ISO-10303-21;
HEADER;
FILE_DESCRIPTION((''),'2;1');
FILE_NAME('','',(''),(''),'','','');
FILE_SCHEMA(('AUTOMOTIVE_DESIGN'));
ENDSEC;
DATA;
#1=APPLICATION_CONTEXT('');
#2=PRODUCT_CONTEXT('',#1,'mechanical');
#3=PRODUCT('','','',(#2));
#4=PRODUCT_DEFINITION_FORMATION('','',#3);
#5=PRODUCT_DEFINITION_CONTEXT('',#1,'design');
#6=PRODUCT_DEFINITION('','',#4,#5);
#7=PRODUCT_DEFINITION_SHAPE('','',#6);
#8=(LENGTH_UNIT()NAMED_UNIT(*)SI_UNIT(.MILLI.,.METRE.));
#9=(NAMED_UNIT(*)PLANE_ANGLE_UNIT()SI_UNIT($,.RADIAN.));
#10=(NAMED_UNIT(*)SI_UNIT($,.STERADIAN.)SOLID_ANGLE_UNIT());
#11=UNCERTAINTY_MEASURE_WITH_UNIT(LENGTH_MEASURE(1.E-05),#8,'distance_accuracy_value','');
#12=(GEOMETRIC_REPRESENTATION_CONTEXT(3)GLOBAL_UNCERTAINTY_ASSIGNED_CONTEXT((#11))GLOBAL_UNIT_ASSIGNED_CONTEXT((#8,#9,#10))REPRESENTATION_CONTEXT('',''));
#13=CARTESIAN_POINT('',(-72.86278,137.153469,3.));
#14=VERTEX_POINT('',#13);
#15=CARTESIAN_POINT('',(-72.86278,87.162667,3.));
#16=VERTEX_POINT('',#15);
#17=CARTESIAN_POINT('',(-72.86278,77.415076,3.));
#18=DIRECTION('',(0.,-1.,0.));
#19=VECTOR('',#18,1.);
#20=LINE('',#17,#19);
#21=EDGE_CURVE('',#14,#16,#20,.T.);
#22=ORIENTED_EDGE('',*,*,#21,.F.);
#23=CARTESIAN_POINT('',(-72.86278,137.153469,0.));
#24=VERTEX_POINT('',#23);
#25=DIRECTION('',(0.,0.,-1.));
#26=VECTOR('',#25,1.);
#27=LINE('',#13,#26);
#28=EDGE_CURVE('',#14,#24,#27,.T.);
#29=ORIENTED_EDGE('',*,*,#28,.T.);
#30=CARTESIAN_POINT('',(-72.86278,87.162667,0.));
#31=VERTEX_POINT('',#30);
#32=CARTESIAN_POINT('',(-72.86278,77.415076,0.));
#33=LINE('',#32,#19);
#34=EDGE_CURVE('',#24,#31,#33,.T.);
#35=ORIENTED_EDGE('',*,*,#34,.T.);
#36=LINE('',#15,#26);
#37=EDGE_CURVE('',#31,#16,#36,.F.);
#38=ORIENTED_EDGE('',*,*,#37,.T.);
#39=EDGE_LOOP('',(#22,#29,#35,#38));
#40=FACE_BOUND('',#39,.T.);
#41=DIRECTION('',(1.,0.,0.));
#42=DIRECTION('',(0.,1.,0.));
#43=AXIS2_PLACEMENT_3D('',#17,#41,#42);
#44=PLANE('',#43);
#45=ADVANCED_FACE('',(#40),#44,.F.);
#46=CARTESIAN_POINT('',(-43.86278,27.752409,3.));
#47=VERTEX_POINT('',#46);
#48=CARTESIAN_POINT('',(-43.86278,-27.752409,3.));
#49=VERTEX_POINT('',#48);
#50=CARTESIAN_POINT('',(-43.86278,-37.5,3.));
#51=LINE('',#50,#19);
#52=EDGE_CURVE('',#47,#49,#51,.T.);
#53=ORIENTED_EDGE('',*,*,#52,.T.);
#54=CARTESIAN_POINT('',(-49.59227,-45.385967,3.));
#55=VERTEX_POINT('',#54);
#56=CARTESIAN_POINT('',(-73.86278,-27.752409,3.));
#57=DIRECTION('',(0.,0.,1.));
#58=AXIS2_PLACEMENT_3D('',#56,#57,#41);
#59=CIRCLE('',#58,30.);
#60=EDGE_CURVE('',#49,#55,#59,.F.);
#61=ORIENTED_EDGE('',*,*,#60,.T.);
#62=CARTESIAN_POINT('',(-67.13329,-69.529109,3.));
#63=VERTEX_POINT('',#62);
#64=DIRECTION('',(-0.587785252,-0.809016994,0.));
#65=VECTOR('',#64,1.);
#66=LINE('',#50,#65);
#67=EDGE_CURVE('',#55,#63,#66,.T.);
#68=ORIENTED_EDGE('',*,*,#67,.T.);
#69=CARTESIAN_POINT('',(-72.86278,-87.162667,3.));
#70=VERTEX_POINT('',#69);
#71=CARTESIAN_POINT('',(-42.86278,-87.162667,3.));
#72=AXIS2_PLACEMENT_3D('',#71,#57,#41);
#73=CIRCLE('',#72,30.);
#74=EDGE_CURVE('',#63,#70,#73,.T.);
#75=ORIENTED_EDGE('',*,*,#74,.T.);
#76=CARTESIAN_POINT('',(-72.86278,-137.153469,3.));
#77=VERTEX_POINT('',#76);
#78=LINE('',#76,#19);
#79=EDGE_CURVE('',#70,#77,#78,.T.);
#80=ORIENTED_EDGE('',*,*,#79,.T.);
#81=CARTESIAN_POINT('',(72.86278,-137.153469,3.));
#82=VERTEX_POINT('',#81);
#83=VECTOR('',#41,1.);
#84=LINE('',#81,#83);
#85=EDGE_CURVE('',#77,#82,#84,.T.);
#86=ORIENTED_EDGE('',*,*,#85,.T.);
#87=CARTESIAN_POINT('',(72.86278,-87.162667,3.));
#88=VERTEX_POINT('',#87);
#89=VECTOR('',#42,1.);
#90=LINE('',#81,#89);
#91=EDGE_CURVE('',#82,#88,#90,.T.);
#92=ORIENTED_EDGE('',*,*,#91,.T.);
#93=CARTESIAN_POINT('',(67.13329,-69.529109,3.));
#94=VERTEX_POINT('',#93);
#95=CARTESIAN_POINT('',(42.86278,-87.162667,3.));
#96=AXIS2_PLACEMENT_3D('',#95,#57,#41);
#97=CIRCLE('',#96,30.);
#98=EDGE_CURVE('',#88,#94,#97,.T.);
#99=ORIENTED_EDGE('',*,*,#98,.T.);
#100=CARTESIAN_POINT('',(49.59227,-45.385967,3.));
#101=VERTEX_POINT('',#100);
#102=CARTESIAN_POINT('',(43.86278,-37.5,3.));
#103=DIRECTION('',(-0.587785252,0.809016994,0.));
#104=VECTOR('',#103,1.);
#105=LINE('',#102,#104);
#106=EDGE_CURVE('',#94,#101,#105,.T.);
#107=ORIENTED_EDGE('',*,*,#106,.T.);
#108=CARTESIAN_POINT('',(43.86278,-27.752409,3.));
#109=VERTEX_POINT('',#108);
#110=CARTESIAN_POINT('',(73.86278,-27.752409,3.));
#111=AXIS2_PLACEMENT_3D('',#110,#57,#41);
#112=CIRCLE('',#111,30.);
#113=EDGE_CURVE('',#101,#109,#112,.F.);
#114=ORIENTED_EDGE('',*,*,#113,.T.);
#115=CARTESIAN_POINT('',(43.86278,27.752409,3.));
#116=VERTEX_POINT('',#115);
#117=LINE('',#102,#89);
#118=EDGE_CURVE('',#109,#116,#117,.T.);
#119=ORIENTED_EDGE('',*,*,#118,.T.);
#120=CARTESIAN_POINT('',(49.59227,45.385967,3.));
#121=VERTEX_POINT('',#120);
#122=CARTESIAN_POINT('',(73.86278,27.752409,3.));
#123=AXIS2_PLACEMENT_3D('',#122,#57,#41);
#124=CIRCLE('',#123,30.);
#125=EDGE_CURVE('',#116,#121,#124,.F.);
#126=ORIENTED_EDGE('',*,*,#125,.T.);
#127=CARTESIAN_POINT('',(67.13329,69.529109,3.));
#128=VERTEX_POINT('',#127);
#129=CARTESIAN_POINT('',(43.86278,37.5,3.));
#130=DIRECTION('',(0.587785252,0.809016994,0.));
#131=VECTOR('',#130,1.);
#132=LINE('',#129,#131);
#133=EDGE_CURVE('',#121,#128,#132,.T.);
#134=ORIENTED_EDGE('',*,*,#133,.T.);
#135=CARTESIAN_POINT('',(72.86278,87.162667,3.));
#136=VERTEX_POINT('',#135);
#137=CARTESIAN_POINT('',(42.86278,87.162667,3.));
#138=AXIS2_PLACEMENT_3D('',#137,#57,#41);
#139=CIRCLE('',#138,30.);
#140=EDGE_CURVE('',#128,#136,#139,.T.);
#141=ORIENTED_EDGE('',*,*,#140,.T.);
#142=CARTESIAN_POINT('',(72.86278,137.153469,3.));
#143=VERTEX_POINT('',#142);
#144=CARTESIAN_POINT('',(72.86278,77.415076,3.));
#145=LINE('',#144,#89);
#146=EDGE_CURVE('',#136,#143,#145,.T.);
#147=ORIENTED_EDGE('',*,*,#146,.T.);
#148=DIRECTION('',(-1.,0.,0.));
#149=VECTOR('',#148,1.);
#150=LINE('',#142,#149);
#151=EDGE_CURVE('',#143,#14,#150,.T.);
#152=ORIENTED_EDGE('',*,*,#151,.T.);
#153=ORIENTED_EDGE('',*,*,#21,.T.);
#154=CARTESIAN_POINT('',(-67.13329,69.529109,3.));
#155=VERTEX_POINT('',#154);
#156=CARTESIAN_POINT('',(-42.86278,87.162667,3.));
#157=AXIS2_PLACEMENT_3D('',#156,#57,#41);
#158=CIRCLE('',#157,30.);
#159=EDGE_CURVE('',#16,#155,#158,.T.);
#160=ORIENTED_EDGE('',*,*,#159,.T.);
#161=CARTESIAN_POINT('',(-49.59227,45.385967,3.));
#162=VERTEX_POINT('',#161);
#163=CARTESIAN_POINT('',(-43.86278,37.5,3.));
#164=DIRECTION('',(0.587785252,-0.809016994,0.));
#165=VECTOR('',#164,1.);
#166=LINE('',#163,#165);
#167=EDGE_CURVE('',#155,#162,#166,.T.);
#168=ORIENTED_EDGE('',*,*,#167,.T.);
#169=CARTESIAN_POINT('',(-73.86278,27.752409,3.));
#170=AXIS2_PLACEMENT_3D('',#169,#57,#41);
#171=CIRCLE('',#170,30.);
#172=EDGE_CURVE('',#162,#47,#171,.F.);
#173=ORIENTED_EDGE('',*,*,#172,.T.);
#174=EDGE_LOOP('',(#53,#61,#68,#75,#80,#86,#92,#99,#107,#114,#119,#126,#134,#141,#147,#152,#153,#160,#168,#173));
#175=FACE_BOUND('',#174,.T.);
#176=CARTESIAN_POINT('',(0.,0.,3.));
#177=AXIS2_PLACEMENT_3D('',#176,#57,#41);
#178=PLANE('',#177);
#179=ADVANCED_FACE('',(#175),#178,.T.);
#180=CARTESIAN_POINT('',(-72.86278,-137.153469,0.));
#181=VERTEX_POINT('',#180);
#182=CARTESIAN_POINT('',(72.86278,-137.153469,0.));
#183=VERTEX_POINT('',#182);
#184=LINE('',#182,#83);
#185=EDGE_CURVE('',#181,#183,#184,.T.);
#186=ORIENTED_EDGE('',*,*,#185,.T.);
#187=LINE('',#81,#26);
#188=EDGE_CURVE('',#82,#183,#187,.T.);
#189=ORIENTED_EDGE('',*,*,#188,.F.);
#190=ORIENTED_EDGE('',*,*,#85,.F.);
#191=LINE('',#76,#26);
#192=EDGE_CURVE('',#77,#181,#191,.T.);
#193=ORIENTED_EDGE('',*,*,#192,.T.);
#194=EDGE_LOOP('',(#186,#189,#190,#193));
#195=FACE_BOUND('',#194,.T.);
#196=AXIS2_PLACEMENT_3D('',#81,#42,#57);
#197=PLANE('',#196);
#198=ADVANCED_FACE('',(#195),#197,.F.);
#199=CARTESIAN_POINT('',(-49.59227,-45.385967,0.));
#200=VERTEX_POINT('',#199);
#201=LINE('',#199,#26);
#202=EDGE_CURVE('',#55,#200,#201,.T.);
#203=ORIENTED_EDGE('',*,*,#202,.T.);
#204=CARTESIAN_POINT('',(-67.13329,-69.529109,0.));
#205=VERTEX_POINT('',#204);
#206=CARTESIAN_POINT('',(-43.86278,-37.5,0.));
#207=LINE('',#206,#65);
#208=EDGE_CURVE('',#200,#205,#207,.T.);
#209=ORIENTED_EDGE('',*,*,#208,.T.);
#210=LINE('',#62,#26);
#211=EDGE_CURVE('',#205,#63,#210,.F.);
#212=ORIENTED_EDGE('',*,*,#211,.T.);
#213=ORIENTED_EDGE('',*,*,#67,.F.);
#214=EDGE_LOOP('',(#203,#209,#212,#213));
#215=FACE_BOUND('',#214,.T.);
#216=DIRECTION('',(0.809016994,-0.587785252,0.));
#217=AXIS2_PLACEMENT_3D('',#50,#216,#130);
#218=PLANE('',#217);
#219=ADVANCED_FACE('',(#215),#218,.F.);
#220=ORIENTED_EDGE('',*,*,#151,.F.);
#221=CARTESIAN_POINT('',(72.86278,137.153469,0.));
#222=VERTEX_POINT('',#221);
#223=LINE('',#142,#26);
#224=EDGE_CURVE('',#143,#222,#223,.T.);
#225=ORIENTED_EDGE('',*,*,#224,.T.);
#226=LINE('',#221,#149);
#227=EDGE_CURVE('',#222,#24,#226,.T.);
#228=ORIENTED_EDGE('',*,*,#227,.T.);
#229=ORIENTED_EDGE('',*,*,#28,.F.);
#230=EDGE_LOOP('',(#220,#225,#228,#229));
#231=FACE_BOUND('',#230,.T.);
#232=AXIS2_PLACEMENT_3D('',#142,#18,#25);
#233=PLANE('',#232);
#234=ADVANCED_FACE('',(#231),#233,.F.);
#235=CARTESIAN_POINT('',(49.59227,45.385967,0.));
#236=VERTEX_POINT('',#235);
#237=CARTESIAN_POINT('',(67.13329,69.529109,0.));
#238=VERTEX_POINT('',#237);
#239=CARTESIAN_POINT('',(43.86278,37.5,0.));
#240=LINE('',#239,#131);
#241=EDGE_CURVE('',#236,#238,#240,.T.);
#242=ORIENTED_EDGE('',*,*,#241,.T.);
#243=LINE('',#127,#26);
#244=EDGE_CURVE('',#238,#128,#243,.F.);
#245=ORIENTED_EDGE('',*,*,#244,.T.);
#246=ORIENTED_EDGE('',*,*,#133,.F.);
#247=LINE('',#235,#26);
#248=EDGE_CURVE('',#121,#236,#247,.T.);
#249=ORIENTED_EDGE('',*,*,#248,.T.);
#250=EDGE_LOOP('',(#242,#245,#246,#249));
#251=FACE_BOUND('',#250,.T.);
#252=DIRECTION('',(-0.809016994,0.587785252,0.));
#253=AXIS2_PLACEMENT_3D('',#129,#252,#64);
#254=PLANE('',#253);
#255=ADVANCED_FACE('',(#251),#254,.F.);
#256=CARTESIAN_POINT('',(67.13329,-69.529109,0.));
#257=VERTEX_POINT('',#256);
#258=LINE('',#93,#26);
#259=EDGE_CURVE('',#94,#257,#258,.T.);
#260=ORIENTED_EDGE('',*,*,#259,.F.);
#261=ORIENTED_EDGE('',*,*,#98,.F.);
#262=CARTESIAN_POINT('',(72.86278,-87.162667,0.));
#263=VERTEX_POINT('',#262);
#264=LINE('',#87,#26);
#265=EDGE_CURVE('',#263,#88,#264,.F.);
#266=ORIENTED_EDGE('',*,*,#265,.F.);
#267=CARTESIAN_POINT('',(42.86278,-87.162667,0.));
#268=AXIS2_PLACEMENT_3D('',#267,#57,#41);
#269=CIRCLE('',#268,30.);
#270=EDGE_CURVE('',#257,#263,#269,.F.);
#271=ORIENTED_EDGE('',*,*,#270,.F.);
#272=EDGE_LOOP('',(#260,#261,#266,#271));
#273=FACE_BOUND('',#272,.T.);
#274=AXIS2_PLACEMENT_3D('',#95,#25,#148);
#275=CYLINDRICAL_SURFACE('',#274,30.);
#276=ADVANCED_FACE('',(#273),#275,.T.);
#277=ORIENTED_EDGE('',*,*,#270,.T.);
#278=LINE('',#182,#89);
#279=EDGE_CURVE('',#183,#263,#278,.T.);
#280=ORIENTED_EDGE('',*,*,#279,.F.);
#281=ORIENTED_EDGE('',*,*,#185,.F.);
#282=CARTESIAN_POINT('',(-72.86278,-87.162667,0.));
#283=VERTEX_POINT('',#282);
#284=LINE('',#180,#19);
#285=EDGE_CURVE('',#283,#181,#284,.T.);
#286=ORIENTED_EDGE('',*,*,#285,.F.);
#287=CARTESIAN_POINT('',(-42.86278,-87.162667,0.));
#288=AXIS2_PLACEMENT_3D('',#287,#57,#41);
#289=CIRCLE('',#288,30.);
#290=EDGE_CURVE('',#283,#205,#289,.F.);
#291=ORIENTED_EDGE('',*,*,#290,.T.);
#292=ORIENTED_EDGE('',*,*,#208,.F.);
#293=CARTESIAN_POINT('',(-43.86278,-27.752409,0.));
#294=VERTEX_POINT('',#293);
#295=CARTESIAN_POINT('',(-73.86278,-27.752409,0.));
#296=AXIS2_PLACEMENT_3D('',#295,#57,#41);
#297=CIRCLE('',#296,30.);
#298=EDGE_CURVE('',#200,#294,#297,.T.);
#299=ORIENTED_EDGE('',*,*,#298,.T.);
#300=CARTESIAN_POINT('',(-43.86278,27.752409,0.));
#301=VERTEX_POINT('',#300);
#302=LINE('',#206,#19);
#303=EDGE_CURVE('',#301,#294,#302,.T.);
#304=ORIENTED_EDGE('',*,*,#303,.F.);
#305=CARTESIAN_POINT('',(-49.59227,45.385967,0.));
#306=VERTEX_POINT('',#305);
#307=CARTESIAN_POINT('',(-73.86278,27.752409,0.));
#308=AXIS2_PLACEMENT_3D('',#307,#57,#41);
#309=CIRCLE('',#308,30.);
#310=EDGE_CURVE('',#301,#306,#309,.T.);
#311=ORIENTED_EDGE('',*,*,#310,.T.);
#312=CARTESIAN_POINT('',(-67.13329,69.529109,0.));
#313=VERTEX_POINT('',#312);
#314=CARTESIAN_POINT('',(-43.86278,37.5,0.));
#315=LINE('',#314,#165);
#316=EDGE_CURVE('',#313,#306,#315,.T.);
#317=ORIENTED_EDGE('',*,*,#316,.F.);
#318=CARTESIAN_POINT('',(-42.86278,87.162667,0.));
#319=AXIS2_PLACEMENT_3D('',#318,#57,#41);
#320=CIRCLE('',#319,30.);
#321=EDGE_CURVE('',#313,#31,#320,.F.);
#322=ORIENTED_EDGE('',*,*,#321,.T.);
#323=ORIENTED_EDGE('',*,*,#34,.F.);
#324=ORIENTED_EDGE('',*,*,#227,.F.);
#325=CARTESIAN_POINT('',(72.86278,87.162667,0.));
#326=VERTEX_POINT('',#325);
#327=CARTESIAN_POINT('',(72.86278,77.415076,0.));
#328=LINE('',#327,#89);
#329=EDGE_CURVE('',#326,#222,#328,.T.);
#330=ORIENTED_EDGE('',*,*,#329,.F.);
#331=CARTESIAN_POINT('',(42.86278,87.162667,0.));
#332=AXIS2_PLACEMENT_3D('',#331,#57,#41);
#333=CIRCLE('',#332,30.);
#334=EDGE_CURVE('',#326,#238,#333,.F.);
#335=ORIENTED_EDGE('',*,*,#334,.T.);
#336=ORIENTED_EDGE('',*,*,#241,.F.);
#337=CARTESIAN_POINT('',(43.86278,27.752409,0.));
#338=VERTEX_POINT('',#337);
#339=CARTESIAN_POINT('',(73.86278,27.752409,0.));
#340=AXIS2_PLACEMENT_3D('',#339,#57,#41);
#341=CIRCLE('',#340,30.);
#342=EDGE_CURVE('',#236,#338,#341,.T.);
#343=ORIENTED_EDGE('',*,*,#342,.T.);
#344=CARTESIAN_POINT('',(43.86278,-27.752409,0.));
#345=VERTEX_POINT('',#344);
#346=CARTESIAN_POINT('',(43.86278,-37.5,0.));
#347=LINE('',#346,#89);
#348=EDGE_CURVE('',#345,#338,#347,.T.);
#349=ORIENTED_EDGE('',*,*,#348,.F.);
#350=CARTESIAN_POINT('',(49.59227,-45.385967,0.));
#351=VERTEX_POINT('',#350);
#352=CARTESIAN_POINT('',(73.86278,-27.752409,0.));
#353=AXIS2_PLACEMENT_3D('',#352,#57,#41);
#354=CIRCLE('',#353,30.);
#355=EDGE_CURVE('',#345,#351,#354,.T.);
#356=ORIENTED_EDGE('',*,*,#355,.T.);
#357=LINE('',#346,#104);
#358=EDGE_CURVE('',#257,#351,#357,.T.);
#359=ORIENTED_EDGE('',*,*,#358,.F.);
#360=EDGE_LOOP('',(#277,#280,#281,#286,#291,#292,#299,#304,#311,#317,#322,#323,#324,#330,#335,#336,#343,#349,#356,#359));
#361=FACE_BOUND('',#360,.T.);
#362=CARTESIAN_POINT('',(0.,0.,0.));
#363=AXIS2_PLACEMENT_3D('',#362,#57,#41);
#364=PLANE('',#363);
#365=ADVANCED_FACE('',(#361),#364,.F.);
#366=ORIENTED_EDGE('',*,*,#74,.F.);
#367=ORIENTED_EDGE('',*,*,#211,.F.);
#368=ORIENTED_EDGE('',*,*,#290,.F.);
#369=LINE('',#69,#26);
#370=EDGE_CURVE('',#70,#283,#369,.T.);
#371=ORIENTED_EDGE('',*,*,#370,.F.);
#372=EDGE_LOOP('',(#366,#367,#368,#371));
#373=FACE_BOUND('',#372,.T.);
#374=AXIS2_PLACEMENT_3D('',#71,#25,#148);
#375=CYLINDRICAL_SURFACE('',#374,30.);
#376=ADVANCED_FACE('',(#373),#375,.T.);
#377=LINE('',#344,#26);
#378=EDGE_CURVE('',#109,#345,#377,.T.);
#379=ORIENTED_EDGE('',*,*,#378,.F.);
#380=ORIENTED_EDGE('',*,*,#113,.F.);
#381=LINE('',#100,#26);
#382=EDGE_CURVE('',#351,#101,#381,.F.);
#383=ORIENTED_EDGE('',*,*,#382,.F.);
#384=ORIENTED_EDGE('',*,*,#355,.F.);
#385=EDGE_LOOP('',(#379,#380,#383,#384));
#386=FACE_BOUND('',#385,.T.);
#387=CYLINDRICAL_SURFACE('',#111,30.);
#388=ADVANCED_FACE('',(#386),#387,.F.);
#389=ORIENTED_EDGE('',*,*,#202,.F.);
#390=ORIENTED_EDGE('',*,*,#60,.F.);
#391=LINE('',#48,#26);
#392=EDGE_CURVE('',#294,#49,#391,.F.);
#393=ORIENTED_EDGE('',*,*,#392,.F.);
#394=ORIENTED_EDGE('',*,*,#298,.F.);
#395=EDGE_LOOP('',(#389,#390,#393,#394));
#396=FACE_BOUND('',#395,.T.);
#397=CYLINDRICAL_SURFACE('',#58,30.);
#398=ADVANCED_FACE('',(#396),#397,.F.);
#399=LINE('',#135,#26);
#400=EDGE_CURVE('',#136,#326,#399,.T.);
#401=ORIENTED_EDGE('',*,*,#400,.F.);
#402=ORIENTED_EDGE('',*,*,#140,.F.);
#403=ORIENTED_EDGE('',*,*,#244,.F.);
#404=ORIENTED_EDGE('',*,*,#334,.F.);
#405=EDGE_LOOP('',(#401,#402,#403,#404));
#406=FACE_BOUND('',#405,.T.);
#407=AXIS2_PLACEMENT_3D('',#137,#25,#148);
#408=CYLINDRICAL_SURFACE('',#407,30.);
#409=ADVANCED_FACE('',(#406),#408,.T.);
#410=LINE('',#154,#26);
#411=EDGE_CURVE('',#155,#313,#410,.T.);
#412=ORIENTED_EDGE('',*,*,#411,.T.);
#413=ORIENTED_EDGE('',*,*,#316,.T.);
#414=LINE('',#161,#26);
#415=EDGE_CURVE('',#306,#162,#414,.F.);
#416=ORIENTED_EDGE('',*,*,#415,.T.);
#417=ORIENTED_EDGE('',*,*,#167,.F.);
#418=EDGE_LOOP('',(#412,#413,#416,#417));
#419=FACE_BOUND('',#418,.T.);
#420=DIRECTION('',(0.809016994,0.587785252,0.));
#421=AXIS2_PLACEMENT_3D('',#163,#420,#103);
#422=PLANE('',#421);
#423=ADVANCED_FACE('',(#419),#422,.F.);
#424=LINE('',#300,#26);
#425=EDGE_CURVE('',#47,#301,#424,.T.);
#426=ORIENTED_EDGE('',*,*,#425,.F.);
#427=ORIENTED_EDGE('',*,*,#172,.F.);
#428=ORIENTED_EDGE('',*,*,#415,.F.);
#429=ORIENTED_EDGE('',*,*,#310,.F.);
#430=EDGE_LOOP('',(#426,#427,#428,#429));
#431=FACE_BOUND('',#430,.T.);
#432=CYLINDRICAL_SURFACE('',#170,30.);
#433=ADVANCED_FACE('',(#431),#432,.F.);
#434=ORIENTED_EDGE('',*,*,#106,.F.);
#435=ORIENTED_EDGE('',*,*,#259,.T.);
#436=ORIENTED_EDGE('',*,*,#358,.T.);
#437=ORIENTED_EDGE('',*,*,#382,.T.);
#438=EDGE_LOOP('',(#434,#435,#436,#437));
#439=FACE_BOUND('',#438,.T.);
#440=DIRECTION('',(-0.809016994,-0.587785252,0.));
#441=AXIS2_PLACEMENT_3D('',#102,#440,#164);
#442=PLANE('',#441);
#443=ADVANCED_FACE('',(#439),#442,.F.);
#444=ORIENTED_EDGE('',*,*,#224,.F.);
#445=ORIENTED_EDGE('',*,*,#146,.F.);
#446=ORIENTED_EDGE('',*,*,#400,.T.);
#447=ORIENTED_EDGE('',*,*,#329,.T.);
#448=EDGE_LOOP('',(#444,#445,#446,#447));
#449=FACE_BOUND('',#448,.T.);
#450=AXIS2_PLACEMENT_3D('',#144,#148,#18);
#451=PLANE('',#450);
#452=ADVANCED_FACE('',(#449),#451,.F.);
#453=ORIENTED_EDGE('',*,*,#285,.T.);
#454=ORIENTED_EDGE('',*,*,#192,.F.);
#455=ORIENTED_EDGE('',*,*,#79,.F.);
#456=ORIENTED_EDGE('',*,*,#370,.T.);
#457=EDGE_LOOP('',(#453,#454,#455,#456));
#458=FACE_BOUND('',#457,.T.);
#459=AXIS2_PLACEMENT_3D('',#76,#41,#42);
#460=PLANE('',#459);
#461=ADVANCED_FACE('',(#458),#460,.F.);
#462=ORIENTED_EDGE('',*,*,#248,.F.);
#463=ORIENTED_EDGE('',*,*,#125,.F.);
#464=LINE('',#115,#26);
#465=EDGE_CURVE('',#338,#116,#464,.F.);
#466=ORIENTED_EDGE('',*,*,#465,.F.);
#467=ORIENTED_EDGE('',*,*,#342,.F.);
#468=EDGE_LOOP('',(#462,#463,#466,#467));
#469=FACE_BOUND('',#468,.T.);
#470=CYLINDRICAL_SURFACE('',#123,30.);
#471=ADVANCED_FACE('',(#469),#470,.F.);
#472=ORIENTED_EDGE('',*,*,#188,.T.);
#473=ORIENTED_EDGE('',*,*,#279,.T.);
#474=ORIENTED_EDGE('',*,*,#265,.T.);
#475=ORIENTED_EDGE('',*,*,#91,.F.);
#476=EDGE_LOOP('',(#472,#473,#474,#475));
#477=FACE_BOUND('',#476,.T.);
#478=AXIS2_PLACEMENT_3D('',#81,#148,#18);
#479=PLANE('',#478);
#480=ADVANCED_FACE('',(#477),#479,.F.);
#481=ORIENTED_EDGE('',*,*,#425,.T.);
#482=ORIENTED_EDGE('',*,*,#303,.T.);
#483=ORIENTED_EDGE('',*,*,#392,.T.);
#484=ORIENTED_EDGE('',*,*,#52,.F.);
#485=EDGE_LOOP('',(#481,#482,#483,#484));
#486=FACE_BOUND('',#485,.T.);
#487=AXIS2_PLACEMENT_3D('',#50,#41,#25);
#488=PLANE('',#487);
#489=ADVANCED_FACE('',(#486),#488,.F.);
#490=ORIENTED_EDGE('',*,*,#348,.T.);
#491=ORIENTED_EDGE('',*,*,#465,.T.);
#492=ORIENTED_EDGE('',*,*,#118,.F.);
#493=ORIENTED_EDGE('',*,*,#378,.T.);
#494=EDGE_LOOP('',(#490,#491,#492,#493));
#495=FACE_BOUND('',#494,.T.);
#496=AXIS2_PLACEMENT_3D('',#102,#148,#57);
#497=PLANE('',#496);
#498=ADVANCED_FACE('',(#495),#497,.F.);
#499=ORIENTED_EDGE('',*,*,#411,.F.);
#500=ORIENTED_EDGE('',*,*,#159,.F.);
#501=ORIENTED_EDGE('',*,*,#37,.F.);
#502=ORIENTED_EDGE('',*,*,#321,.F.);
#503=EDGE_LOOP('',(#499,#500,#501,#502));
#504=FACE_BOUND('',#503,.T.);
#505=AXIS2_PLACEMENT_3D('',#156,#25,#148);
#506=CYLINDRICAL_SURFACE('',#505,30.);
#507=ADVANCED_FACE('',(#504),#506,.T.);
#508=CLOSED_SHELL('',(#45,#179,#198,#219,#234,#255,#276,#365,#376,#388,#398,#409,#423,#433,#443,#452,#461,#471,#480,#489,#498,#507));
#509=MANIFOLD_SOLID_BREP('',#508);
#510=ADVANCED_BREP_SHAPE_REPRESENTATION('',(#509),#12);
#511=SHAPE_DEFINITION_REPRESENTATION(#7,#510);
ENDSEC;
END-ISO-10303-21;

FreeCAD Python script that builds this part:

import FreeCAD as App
import Part
import Sketcher

V = App.Vector
Q = App.Units.Quantity


def edges_at(feature, points):
    """Names of the edges that pass closest to the given points."""
    edges = feature.Shape.Edges
    near = lambda p: min(range(len(edges)), key=lambda i: edges[i].distToShape(Part.Vertex(*p))[0])
    return sorted({f"Edge{near(p) + 1}" for p in points})


def add_polygon(sketch, points):
    """Adds a closed chain of lines whose ends are joined by coincident constraints."""
    first, n = sketch.GeometryCount, len(points)
    for a, b in zip(points, points[1:] + points[:1]):
        sketch.addGeometry(Part.LineSegment(App.Vector(*a, 0), App.Vector(*b, 0)), False)
    for i in range(n):
        sketch.addConstraint(Sketcher.Constraint("Coincident", first + i, 2, first + (i + 1) % n, 1))

doc = App.newDocument("Part")
params = doc.addObject("Spreadsheet::Sheet", "Params")
for row, (alias, value) in enumerate([
    ("sketch1_height", "75 mm"),
    ("pad1_length", "3 mm"),
    ("fillet_radius", "30 mm"),
], start=1):
    params.set(f"A{row}", alias)
    params.set(f"B{row}", "=" + value)
    params.setAlias(f"B{row}", alias)

body = doc.addObject("PartDesign::Body", "Body")

# Sketch on XY plane
sketch1 = body.newObject("Sketcher::SketchObject", "Sketch")
sketch1.AttachmentSupport = (doc.getObject("XY_Plane"), [""])
sketch1.MapMode = "FlatFace"
add_polygon(sketch1, [(-73, -137), (73, -137), (73, -77), (44, -38), (44, 38), (73, 77), (73, 137), (-73, 137), (-73, 77), (-44, 38), (-44, -38), (-73, -77)])  # lines 0-11
sketch1.addConstraint([
    Sketcher.Constraint("Horizontal", 0),
    Sketcher.Constraint("Vertical", 1),
    Sketcher.Constraint("Vertical", 3),
    Sketcher.Constraint("Vertical", 5),
    Sketcher.Constraint("Horizontal", 6),
    Sketcher.Constraint("Vertical", 7),
    Sketcher.Constraint("Vertical", 9),
    Sketcher.Constraint("Vertical", 11),
    Sketcher.Constraint("Symmetric", 0, 2, 6, 2, -1, 1),
    Sketcher.Constraint("Symmetric", 2, 2, 8, 2, -1, 1),
    Sketcher.Constraint("Symmetric", 4, 2, 10, 2, -1, 1),
    Sketcher.Constraint("Symmetric", 4, 2, 7, 2, -2),
    Sketcher.Constraint("Parallel", 2, 8),
    Sketcher.Constraint("Parallel", 4, 10),
    Sketcher.Constraint("Horizontal", 3, 2, 8, 2),
    Sketcher.Constraint("DistanceY", 3, 1, 3, 2, 75.0),
    Sketcher.Constraint("Angle", 2, Q("126 deg")),
    Sketcher.Constraint("DistanceX", 2, 2, 1, 2, 29.0),
    Sketcher.Constraint("DistanceX", 0, 1, 0, 2, 145.725561),
    Sketcher.Constraint("DistanceY", 1, 1, 1, 2, 59.738393),
])
sketch1.setExpression("Constraints[27]", "Params.sketch1_height")
pad1 = body.newObject("PartDesign::Pad", "Pad")
pad1.Profile = sketch1
pad1.setExpression("Length", "Params.pad1_length")
doc.recompute()

fillet = body.newObject("PartDesign::Fillet", "Fillet")
fillet.Base = (pad1, edges_at(pad1, [
    (72.863, 77.415, 1.5),
    (43.863, 37.5, 1.5),
    (43.863, -37.5, 1.5),
    (72.863, -77.415, 1.5),
    (-72.863, -77.415, 1.5),
    (-43.863, -37.5, 1.5),
    (-43.863, 37.5, 1.5),
    (-72.863, 77.415, 1.5),
]))
fillet.setExpression("Radius", "Params.fillet_radius")

doc.recompute()
